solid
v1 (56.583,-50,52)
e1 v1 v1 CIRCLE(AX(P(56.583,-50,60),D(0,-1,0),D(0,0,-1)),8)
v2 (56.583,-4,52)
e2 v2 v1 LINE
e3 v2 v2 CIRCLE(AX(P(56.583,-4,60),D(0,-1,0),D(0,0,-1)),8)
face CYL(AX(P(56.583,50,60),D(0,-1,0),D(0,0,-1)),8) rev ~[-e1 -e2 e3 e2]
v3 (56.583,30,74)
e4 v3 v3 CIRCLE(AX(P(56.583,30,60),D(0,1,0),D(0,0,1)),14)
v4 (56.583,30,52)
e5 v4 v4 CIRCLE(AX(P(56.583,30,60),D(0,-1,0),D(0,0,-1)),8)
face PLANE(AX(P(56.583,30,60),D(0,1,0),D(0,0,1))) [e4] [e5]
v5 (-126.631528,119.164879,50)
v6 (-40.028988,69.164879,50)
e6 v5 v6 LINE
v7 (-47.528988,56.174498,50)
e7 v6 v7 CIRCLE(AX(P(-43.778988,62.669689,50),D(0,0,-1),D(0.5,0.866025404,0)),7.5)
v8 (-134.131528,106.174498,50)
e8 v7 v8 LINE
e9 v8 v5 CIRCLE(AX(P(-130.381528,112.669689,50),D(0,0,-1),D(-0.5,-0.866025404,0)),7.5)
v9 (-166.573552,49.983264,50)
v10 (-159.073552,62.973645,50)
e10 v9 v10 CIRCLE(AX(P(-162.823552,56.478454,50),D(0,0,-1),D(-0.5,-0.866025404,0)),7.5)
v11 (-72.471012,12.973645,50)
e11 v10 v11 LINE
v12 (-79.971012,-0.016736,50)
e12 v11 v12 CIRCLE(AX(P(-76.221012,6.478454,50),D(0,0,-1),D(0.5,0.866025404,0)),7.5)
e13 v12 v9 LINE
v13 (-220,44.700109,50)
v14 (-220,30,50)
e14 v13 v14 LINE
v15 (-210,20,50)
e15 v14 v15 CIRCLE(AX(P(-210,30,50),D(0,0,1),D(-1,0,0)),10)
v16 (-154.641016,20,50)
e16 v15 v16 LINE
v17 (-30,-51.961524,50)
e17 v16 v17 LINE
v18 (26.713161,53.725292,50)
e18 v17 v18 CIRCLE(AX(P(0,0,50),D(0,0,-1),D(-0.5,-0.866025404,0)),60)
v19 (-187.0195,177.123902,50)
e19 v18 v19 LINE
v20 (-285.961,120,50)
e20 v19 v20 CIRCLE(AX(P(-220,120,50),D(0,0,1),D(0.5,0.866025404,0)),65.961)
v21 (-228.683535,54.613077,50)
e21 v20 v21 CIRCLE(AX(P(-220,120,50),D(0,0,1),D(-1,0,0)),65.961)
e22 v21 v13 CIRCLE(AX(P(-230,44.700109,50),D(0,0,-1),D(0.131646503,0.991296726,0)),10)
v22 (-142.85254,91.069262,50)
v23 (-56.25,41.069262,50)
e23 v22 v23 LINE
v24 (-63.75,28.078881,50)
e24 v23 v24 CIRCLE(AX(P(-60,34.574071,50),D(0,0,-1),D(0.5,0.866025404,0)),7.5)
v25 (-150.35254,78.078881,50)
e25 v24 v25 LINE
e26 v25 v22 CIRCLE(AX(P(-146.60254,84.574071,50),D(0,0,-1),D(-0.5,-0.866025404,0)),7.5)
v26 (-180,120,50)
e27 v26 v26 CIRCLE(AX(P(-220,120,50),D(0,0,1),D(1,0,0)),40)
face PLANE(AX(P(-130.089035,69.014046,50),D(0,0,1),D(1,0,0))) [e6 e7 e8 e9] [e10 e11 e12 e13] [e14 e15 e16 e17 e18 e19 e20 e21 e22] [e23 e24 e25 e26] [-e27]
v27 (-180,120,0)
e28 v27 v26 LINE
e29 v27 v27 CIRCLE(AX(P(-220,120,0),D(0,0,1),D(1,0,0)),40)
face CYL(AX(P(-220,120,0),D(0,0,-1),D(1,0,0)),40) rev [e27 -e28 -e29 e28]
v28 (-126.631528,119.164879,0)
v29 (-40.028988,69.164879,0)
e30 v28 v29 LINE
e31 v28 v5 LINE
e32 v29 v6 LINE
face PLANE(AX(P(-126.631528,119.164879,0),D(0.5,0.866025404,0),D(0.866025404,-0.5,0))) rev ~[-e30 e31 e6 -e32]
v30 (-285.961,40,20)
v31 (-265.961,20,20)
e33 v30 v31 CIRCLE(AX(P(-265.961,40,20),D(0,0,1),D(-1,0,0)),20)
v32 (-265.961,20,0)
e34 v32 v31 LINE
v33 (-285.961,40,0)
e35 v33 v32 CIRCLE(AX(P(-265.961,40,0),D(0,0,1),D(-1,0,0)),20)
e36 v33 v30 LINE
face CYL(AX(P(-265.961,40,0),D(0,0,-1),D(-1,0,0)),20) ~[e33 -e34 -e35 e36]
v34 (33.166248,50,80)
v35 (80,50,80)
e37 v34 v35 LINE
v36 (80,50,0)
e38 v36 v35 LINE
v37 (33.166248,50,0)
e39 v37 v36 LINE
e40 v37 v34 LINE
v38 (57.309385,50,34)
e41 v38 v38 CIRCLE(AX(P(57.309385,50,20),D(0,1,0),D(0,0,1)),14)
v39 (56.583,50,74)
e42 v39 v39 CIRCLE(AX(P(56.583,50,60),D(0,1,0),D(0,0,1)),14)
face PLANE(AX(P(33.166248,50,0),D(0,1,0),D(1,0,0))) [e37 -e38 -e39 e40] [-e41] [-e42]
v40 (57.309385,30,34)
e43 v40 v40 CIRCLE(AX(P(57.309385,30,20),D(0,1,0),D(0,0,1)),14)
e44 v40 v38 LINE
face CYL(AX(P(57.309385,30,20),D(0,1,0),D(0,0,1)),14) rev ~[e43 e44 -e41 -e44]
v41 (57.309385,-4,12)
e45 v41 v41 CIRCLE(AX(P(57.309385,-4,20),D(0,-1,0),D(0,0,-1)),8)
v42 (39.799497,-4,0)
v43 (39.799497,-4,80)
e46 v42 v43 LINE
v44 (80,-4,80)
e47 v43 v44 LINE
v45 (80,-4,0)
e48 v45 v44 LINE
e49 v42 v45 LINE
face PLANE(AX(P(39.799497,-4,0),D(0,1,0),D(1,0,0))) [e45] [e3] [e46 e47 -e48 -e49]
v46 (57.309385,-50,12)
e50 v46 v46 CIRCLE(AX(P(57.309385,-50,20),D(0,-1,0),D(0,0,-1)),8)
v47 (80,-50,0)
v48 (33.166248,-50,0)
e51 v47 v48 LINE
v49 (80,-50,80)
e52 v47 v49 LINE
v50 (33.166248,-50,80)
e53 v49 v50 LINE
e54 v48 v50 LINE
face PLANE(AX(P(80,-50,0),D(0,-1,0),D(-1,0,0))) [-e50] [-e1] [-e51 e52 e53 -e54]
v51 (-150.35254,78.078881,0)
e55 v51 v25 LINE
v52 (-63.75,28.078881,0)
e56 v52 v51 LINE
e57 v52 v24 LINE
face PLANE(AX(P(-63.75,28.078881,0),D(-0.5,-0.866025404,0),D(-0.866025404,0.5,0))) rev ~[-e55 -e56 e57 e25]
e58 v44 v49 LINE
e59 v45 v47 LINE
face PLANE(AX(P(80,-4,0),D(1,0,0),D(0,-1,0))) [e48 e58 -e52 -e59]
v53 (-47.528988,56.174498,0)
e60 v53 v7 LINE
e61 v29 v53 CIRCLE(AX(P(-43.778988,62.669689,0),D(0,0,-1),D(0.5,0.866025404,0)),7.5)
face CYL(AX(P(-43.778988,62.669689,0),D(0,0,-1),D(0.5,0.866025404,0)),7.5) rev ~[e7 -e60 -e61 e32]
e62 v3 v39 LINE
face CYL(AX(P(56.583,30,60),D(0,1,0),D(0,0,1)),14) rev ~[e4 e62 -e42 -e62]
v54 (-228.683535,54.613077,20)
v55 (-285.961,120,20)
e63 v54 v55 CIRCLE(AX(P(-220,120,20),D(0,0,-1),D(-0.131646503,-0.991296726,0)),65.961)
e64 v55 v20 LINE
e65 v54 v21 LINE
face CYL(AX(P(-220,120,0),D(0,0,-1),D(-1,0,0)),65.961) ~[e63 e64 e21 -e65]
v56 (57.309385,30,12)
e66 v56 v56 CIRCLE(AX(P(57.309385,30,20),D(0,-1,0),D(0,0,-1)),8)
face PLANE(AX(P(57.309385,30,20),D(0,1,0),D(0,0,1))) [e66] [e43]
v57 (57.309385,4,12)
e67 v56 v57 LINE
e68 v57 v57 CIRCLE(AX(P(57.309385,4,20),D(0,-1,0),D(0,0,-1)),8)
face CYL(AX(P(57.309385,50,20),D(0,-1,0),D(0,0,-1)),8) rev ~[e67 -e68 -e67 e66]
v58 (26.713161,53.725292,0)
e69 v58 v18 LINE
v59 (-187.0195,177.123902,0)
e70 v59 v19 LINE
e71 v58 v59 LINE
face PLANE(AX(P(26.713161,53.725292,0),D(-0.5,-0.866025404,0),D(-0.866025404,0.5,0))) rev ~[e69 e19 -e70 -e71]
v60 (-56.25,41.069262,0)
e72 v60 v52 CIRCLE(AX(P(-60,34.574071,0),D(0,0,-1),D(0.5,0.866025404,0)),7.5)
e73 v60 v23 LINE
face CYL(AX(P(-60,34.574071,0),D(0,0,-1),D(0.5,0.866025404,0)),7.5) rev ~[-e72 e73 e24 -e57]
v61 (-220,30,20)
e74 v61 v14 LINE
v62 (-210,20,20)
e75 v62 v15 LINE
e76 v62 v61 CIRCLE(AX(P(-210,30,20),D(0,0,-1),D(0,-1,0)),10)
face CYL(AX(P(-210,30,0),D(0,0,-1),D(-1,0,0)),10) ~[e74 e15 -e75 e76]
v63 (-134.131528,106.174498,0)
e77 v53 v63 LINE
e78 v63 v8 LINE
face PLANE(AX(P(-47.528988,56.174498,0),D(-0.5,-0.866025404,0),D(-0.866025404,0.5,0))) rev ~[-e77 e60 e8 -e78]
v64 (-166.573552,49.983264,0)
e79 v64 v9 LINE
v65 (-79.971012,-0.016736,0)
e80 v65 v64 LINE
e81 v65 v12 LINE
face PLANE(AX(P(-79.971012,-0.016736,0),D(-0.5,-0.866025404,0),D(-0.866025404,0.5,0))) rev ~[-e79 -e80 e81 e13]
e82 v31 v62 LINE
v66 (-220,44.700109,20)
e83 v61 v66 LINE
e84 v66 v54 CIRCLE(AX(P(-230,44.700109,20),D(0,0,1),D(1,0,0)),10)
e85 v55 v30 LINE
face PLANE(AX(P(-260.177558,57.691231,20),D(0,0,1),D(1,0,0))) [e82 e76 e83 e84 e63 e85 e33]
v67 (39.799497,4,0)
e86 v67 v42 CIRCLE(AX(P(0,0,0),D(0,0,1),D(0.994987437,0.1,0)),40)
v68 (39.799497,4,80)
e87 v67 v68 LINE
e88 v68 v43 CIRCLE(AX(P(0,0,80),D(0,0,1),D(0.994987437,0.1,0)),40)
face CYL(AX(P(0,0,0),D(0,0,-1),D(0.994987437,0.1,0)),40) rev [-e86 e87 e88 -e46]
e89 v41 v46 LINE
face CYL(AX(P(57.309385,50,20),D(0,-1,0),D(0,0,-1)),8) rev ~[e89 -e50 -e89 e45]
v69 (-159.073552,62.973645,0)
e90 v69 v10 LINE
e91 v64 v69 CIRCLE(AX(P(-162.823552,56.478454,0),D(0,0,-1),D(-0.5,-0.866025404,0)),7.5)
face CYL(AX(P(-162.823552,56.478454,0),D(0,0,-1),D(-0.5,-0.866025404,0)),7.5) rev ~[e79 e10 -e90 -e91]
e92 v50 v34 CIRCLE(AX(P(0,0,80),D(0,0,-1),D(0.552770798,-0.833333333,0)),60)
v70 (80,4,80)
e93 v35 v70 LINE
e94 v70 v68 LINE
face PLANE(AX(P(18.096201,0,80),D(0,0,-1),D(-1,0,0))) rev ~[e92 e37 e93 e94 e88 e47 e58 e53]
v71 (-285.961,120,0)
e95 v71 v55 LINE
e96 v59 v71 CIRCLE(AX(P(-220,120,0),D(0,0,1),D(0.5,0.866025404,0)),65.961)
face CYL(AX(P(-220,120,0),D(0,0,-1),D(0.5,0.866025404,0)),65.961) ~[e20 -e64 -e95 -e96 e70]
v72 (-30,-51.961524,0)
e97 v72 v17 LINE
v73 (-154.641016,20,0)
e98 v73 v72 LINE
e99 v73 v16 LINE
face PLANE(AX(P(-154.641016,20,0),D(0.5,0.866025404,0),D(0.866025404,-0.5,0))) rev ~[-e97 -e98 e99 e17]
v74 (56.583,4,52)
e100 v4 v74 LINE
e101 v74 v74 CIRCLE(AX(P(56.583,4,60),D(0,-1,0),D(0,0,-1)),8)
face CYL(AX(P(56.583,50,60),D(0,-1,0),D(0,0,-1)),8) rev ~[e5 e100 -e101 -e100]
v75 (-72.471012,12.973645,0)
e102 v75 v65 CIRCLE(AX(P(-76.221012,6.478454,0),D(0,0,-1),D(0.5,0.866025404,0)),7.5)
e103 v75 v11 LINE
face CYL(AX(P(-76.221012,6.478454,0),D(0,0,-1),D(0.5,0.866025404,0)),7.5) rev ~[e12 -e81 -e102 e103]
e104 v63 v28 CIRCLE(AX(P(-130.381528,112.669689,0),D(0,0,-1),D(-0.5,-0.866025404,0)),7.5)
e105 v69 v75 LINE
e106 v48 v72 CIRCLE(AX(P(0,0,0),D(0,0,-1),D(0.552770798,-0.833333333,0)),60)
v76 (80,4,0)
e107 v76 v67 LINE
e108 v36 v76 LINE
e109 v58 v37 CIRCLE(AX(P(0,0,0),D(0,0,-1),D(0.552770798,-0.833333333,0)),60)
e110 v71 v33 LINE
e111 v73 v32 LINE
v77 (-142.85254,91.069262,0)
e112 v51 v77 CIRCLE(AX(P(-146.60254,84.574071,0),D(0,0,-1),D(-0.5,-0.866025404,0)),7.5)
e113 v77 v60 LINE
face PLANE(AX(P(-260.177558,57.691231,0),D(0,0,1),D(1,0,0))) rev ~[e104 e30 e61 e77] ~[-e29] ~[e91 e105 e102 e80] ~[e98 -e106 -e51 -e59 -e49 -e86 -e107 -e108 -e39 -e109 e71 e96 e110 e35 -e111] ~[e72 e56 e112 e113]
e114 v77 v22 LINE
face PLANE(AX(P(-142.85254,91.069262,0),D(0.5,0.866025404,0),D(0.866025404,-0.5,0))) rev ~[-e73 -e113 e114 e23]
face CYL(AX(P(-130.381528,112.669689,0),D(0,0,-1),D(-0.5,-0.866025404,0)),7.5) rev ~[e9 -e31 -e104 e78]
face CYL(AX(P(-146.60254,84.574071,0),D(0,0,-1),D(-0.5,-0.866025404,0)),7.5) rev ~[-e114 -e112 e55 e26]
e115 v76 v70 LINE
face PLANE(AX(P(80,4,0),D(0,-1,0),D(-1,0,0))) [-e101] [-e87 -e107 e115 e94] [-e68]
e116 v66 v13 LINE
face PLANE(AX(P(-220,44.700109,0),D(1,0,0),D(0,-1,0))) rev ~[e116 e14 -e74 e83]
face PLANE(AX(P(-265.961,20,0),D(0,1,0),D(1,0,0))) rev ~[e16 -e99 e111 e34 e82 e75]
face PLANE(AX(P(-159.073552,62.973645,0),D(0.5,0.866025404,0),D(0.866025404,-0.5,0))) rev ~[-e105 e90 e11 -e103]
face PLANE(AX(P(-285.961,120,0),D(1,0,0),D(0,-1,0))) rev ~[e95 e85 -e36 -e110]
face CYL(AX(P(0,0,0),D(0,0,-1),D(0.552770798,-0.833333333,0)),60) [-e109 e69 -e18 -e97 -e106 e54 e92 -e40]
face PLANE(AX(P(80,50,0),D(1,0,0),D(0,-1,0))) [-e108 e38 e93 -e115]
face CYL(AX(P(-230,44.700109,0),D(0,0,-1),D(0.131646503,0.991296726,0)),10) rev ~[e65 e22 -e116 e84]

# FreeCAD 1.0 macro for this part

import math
import FreeCAD as App
import Part
import Sketcher
Q = App.Units.Quantity

doc = App.newDocument("Part")
body = doc.addObject("PartDesign::Body", "Body")

# Sketch on XY plane
sketch1 = body.newObject("Sketcher::SketchObject", "Sketch")
sketch1.AttachmentSupport = (doc.getObject("XY_Plane"), [""])
sketch1.MapMode = "FlatFace"
sketch1.addGeometry([
    Part.ArcOfCircle(Part.Circle(App.Vector(-220, 120, 0), App.Vector(0, 0, 1), 66), math.radians(60), math.radians(180)),  # 0
    Part.ArcOfCircle(Part.Circle(App.Vector(-220, 120, 0), App.Vector(0, 0, 1), 66), math.radians(180), math.radians(262)),  # 1
    Part.ArcOfCircle(Part.Circle(App.Vector(-230, 45, 0), App.Vector(0, 0, 1), 10), math.radians(0), math.radians(82)),  # 2
    Part.LineSegment(App.Vector(-220, 45, 0), App.Vector(-220, 30, 0)),  # 3
    Part.ArcOfCircle(Part.Circle(App.Vector(-210, 30, 0), App.Vector(0, 0, 1), 10), math.radians(180), math.radians(270)),  # 4
    Part.LineSegment(App.Vector(-210, 20, 0), App.Vector(-155, 20, 0)),  # 5
    Part.LineSegment(App.Vector(-155, 20, 0), App.Vector(-30, -52, 0)),  # 6
    Part.ArcOfCircle(Part.Circle(App.Vector(0, 0, 0), App.Vector(0, 0, 1), 60), math.radians(64), math.radians(240)),  # 7
    Part.LineSegment(App.Vector(27, 54, 0), App.Vector(-187, 177, 0)),  # 8
    Part.LineSegment(App.Vector(-159, 63, 0), App.Vector(-72, 13, 0)),  # 9
    Part.ArcOfCircle(Part.Circle(App.Vector(-76, 6, 0), App.Vector(0, 0, 1), 8), math.radians(-120), math.radians(60)),  # 10
    Part.LineSegment(App.Vector(-80, 0, 0), App.Vector(-167, 50, 0)),  # 11
    Part.ArcOfCircle(Part.Circle(App.Vector(-163, 56, 0), App.Vector(0, 0, 1), 8), math.radians(60), math.radians(240)),  # 12
    Part.LineSegment(App.Vector(-143, 91, 0), App.Vector(-56, 41, 0)),  # 13
    Part.ArcOfCircle(Part.Circle(App.Vector(-60, 35, 0), App.Vector(0, 0, 1), 8), math.radians(-120), math.radians(60)),  # 14
    Part.LineSegment(App.Vector(-64, 28, 0), App.Vector(-150, 78, 0)),  # 15
    Part.ArcOfCircle(Part.Circle(App.Vector(-147, 85, 0), App.Vector(0, 0, 1), 8), math.radians(60), math.radians(240)),  # 16
    Part.Circle(App.Vector(-220, 120, 0), App.Vector(0, 0, 1), 40),  # 17
    Part.LineSegment(App.Vector(-127, 119, 0), App.Vector(-40, 69, 0)),  # 18
    Part.ArcOfCircle(Part.Circle(App.Vector(-44, 63, 0), App.Vector(0, 0, 1), 8), math.radians(-120), math.radians(60)),  # 19
    Part.LineSegment(App.Vector(-48, 56, 0), App.Vector(-134, 106, 0)),  # 20
    Part.ArcOfCircle(Part.Circle(App.Vector(-130, 113, 0), App.Vector(0, 0, 1), 8), math.radians(60), math.radians(240)),  # 21
], False)
sketch1.addConstraint([
    Sketcher.Constraint("Tangent", 0, 2, 1, 1),
    Sketcher.Constraint("Tangent", 1, 2, 2, 2),
    Sketcher.Constraint("Tangent", 2, 1, 3, 1),
    Sketcher.Constraint("Tangent", 3, 2, 4, 1),
    Sketcher.Constraint("Tangent", 4, 2, 5, 1),
    Sketcher.Constraint("Coincident", 5, 2, 6, 1),
    Sketcher.Constraint("Tangent", 6, 2, 7, 2),
    Sketcher.Constraint("Coincident", 7, 1, 8, 1),
    Sketcher.Constraint("Tangent", 8, 2, 0, 1),
    Sketcher.Constraint("Tangent", 9, 2, 10, 2),
    Sketcher.Constraint("Tangent", 10, 1, 11, 1),
    Sketcher.Constraint("Tangent", 11, 2, 12, 2),
    Sketcher.Constraint("Tangent", 12, 1, 9, 1),
    Sketcher.Constraint("Tangent", 13, 2, 14, 2),
    Sketcher.Constraint("Tangent", 14, 1, 15, 1),
    Sketcher.Constraint("Tangent", 15, 2, 16, 2),
    Sketcher.Constraint("Tangent", 16, 1, 13, 1),
    Sketcher.Constraint("Tangent", 18, 2, 19, 2),
    Sketcher.Constraint("Tangent", 19, 1, 20, 1),
    Sketcher.Constraint("Tangent", 20, 2, 21, 2),
    Sketcher.Constraint("Tangent", 21, 1, 18, 1),
    Sketcher.Constraint("Vertical", 3),
    Sketcher.Constraint("Horizontal", 5),
    Sketcher.Constraint("Coincident", 7, 3, -1, 1),
    Sketcher.Constraint("Coincident", 17, 3, 0, 3),
    Sketcher.Constraint("Equal", 0, 1),
    Sketcher.Constraint("Equal", 2, 4),
    Sketcher.Constraint("Equal", 10, 12),
    Sketcher.Constraint("Equal", 12, 14),
    Sketcher.Constraint("Equal", 14, 16),
    Sketcher.Constraint("Equal", 16, 19),
    Sketcher.Constraint("Equal", 19, 21),
    Sketcher.Constraint("Parallel", 6, 8),
    Sketcher.Constraint("Parallel", 8, 9),
    Sketcher.Constraint("Parallel", 11, 13),
    Sketcher.Constraint("Parallel", 15, 18),
    Sketcher.Constraint("Horizontal", 17, 3, 0, 2),
    Sketcher.Constraint("Vertical", 17, 3, 2, 1),
    Sketcher.Constraint("Equal", 11, 13),
    Sketcher.Constraint("Equal", 15, 18),
    Sketcher.Constraint("Diameter", 17, 80.0),
    Sketcher.Constraint("Radius", 2, 10.0),
    Sketcher.Constraint("Radius", 7, 60.0),
    Sketcher.Constraint("Radius", 10, 7.5),
    Sketcher.Constraint("Angle", 6, Q("-30 deg")),
    Sketcher.Constraint("Distance", 9, 100.0),
    Sketcher.Constraint("DistanceX", 0, 3, -1, 1, 220.0),
    Sketcher.Constraint("DistanceY", -1, 1, 0, 3, 120.0),
    Sketcher.Constraint("DistanceY", -1, 1, 4, 3, 30.0),
    Sketcher.Constraint("DistanceX", 14, 3, -1, 1, 60.0),
    Sketcher.Constraint("Radius", 0, 65.961),
    Sketcher.Constraint("DistanceY", 10, 1, 13, 2, 41.085998),
    Sketcher.Constraint("DistanceY", 14, 1, 18, 2, 41.085998),
    Sketcher.Constraint("DistanceY", -1, 1, 19, 1, 56.174498),
    Sketcher.Constraint("DistanceX", 21, 3, -1, 1, 130.381528),
    Sketcher.Constraint("DistanceX", 10, 3, -1, 1, 76.221012),
])
pad1 = body.newObject("PartDesign::Pad", "Pad")
pad1.Profile = sketch1
pad1.Length = 50

# Sketch on XY plane
sketch2 = body.newObject("Sketcher::SketchObject", "Sketch001")
sketch2.AttachmentSupport = (doc.getObject("XY_Plane"), [""])
sketch2.MapMode = "FlatFace"
sketch2.addGeometry([
    Part.LineSegment(App.Vector(80, 50, 0), App.Vector(33, 50, 0)),  # 0
    Part.ArcOfCircle(Part.Circle(App.Vector(0, 0, 0), App.Vector(0, 0, 1), 60), math.radians(56), math.radians(304)),  # 1
    Part.LineSegment(App.Vector(33, -50, 0), App.Vector(80, -50, 0)),  # 2
    Part.LineSegment(App.Vector(80, -50, 0), App.Vector(80, -4, 0)),  # 3
    Part.LineSegment(App.Vector(80, -4, 0), App.Vector(40, -4, 0)),  # 4
    Part.ArcOfCircle(Part.Circle(App.Vector(0, 0, 0), App.Vector(0, 0, 1), 40), math.radians(6), math.radians(354)),  # 5
    Part.LineSegment(App.Vector(40, 4, 0), App.Vector(80, 4, 0)),  # 6
    Part.LineSegment(App.Vector(80, 4, 0), App.Vector(80, 50, 0)),  # 7
], False)
sketch2.addConstraint([
    Sketcher.Constraint("Coincident", 0, 2, 1, 1),
    Sketcher.Constraint("Coincident", 1, 2, 2, 1),
    Sketcher.Constraint("Coincident", 2, 2, 3, 1),
    Sketcher.Constraint("Coincident", 3, 2, 4, 1),
    Sketcher.Constraint("Coincident", 4, 2, 5, 2),
    Sketcher.Constraint("Coincident", 5, 1, 6, 1),
    Sketcher.Constraint("Coincident", 6, 2, 7, 1),
    Sketcher.Constraint("Coincident", 7, 2, 0, 1),
    Sketcher.Constraint("Horizontal", 0),
    Sketcher.Constraint("Horizontal", 2),
    Sketcher.Constraint("Vertical", 3),
    Sketcher.Constraint("Horizontal", 4),
    Sketcher.Constraint("Horizontal", 6),
    Sketcher.Constraint("Vertical", 7),
    Sketcher.Constraint("Coincident", 1, 3, -1, 1),
    Sketcher.Constraint("Coincident", 5, 3, -1, 1),
    Sketcher.Constraint("Symmetric", 3, 2, 6, 2, -1),
    Sketcher.Constraint("Vertical", 0, 2, 1, 2),
    Sketcher.Constraint("Radius", 1, 60.0),
    Sketcher.Constraint("Radius", 5, 40.0),
    Sketcher.Constraint("DistanceY", 3, 1, 3, 2, 46.0),
    Sketcher.Constraint("DistanceY", -1, 1, 0, 2, 50.0),
    Sketcher.Constraint("DistanceX", -1, 1, 2, 2, 80.0),
])
pad2 = body.newObject("PartDesign::Pad", "Pad001")
pad2.Profile = sketch2
pad2.Length = 80

# Sketch on XY plane
sketch3 = body.newObject("Sketcher::SketchObject", "Sketch002")
sketch3.AttachmentSupport = (doc.getObject("XY_Plane"), [""])
sketch3.MapMode = "FlatFace"
sketch3.addGeometry([
    Part.ArcOfCircle(Part.Circle(App.Vector(-220, 120, 0), App.Vector(0, 0, 1), 66), math.radians(180), math.radians(262)),  # 0
    Part.LineSegment(App.Vector(-286, 120, 0), App.Vector(-286, 40, 0)),  # 1
    Part.ArcOfCircle(Part.Circle(App.Vector(-266, 40, 0), App.Vector(0, 0, 1), 20), math.radians(180), math.radians(270)),  # 2
    Part.LineSegment(App.Vector(-266, 20, 0), App.Vector(-210, 20, 0)),  # 3
    Part.ArcOfCircle(Part.Circle(App.Vector(-210, 30, 0), App.Vector(0, 0, 1), 10), math.radians(180), math.radians(270)),  # 4
    Part.LineSegment(App.Vector(-220, 30, 0), App.Vector(-220, 45, 0)),  # 5
    Part.ArcOfCircle(Part.Circle(App.Vector(-230, 45, 0), App.Vector(0, 0, 1), 10), math.radians(0), math.radians(82)),  # 6
], False)
sketch3.addConstraint([
    Sketcher.Constraint("Tangent", 0, 1, 1, 1),
    Sketcher.Constraint("Tangent", 1, 2, 2, 1),
    Sketcher.Constraint("Tangent", 2, 2, 3, 1),
    Sketcher.Constraint("Tangent", 3, 2, 4, 2),
    Sketcher.Constraint("Tangent", 4, 1, 5, 1),
    Sketcher.Constraint("Tangent", 5, 2, 6, 1),
    Sketcher.Constraint("Tangent", 6, 2, 0, 2),
    Sketcher.Constraint("Vertical", 1),
    Sketcher.Constraint("Horizontal", 3),
    Sketcher.Constraint("Vertical", 5),
    Sketcher.Constraint("Equal", 4, 6),
    Sketcher.Constraint("Vertical", 0, 3, 4, 1),
    Sketcher.Constraint("Radius", 2, 20.0),
    Sketcher.Constraint("Radius", 4, 10.0),
    Sketcher.Constraint("DistanceY", 1, 2, 1, 1, 80.0),
    Sketcher.Constraint("DistanceX", 0, 3, -1, 1, 220.0),
    Sketcher.Constraint("DistanceY", -1, 1, 0, 3, 120.0),
    Sketcher.Constraint("Radius", 0, 65.961),
])
pad3 = body.newObject("PartDesign::Pad", "Pad002")
pad3.Profile = sketch3
pad3.Length = 20

# Sketch on XZ plane
sketch4 = body.newObject("Sketcher::SketchObject", "Sketch003")
sketch4.AttachmentSupport = (doc.getObject("XZ_Plane"), [""])
sketch4.MapMode = "FlatFace"
sketch4.AttachmentOffset = App.Placement(App.Vector(0, 0, -50), App.Rotation())
sketch4.addGeometry([
    Part.Circle(App.Vector(57, 60, 0), App.Vector(0, 0, 1), 8),
    Part.Circle(App.Vector(57, 20, 0), App.Vector(0, 0, 1), 8),
], False)
sketch4.addConstraint([
    Sketcher.Constraint("Equal", 0, 1),
    Sketcher.Constraint("Diameter", 0, 16.0),
    Sketcher.Constraint("DistanceY", -1, 1, 0, 3, 60.0),
    Sketcher.Constraint("DistanceY", -1, 1, 1, 3, 20.0),
    Sketcher.Constraint("DistanceX", -1, 1, 0, 3, 56.583),
    Sketcher.Constraint("DistanceX", -1, 1, 1, 3, 57.309385),
])
doc.recompute()
hole = body.newObject("PartDesign::Hole", "Hole")
hole.Profile = sketch4
hole.ThreadType = "None"
hole.Diameter = 16
hole.DepthType = "ThroughAll"
hole.HoleCutType = "Counterbore"
hole.HoleCutDiameter = 28
hole.HoleCutDepth = 20
hole.Reversed = True

doc.recompute()
